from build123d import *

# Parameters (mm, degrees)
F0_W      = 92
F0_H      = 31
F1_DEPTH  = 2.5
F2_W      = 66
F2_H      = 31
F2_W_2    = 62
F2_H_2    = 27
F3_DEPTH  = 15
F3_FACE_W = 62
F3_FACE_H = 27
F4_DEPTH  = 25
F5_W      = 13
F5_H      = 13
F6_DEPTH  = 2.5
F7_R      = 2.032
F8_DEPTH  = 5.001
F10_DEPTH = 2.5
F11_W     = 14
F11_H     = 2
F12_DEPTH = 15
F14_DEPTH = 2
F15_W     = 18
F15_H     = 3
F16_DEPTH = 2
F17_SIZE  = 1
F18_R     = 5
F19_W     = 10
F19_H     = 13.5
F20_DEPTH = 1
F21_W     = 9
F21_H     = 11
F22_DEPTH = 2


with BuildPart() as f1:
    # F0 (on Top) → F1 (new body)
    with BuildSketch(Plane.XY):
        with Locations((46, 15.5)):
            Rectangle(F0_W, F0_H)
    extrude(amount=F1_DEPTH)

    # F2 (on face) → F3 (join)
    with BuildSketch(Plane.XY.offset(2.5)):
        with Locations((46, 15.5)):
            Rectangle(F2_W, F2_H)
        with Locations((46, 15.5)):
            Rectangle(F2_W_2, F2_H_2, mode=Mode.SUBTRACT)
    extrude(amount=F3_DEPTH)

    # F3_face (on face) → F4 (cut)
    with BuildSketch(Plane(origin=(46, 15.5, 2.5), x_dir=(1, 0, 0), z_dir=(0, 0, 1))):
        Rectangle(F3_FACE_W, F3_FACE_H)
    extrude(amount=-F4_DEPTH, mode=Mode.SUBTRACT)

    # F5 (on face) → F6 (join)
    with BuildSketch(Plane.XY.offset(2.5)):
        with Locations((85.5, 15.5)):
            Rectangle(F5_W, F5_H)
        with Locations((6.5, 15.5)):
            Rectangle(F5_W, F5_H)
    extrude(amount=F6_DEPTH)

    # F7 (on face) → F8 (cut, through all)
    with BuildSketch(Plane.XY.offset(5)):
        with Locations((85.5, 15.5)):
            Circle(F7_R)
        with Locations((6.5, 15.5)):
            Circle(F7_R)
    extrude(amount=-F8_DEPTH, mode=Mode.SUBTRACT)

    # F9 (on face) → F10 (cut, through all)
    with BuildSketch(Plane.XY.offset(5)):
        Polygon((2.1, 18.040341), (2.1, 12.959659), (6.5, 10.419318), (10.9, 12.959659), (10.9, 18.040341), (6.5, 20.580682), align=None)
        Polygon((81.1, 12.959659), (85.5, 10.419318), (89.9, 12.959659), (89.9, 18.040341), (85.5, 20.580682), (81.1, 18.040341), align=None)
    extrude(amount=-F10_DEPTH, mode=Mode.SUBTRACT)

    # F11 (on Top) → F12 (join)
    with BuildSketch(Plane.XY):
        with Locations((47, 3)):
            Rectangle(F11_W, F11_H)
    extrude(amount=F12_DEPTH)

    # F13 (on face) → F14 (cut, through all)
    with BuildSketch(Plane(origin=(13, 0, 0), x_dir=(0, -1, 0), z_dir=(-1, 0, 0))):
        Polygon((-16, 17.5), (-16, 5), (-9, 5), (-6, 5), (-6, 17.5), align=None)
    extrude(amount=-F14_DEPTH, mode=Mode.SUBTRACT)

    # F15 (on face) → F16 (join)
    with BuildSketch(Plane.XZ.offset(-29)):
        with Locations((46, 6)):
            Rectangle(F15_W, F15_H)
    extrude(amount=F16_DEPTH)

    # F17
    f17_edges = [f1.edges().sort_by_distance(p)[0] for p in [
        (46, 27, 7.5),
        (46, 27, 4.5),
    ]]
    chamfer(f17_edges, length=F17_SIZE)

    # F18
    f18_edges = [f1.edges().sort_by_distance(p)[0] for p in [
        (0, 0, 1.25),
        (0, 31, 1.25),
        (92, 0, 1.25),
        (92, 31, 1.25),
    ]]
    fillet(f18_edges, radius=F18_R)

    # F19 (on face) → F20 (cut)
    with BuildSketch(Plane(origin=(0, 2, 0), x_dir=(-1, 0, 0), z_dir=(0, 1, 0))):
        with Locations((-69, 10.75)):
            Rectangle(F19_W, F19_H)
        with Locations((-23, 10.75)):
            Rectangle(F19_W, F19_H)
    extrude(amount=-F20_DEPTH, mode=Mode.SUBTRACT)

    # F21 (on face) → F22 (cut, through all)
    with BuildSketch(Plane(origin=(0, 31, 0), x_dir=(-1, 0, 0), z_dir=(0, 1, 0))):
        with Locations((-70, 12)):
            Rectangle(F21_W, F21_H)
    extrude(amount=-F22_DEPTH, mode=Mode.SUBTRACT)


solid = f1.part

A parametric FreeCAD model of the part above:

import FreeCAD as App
import Part
import Sketcher

V = App.Vector
Q = App.Units.Quantity


def edges_at(feature, points):
    """Names of the edges that pass closest to the given points."""
    edges = feature.Shape.Edges
    near = lambda p: min(range(len(edges)), key=lambda i: edges[i].distToShape(Part.Vertex(*p))[0])
    return sorted({f"Edge{near(p) + 1}" for p in points})


def add_polygon(sketch, points):
    """Adds a closed chain of lines whose ends are joined by coincident constraints."""
    first, n = sketch.GeometryCount, len(points)
    for a, b in zip(points, points[1:] + points[:1]):
        sketch.addGeometry(Part.LineSegment(App.Vector(*a, 0), App.Vector(*b, 0)), False)
    for i in range(n):
        sketch.addConstraint(Sketcher.Constraint("Coincident", first + i, 2, first + (i + 1) % n, 1))

doc = App.newDocument("Part")
body = doc.addObject("PartDesign::Body", "Body")

sketch1 = body.newObject("Sketcher::SketchObject", "Sketch")
sketch1.AttachmentSupport = (doc.getObject("XY_Plane"), [""])
sketch1.MapMode = "FlatFace"
add_polygon(sketch1, [(0, 31), (0, 0), (92, 0), (92, 31)])
sketch1.addConstraint([
    Sketcher.Constraint("Vertical", 0),
    Sketcher.Constraint("Horizontal", 1),
    Sketcher.Constraint("Vertical", 2),
    Sketcher.Constraint("Horizontal", 3),
    Sketcher.Constraint("Coincident", 0, 2, -1, 1),
    Sketcher.Constraint("DistanceX", 1, 1, 1, 2, 92.0),
    Sketcher.Constraint("DistanceY", 0, 2, 0, 1, 31.0),
])
pad1 = body.newObject("PartDesign::Pad", "Pad")
pad1.Profile = sketch1
pad1.Length = 2.5

sketch2 = body.newObject("Sketcher::SketchObject", "Sketch001")
sketch2.AttachmentSupport = (doc.getObject("XY_Plane"), [""])
sketch2.MapMode = "FlatFace"
sketch2.AttachmentOffset = App.Placement(V(0, 0, 2.5), App.Rotation())
add_polygon(sketch2, [(13, 31), (13, 0), (79, 0), (79, 31)])
add_polygon(sketch2, [(77, 2), (15, 2), (15, 29), (77, 29)])
sketch2.addConstraint([
    Sketcher.Constraint("Vertical", 0),
    Sketcher.Constraint("Horizontal", 1),
    Sketcher.Constraint("Vertical", 2),
    Sketcher.Constraint("Horizontal", 3),
    Sketcher.Constraint("Horizontal", 4),
    Sketcher.Constraint("Vertical", 5),
    Sketcher.Constraint("Horizontal", 6),
    Sketcher.Constraint("Vertical", 7),
    Sketcher.Constraint("PointOnObject", 0, 2, -1),
    Sketcher.Constraint("DistanceX", 1, 1, 1, 2, 66.0),
    Sketcher.Constraint("DistanceX", 4, 2, 4, 1, 62.0),
    Sketcher.Constraint("DistanceY", 0, 2, 0, 1, 31.0),
    Sketcher.Constraint("DistanceY", 5, 1, 5, 2, 27.0),
    Sketcher.Constraint("DistanceX", -1, 1, 0, 2, 13.0),
    Sketcher.Constraint("DistanceX", -1, 1, 4, 2, 15.0),
    Sketcher.Constraint("DistanceY", -1, 1, 4, 2, 2.0),
])
pad2 = body.newObject("PartDesign::Pad", "Pad001")
pad2.Profile = sketch2
pad2.Length = 15

sketch3 = body.newObject("Sketcher::SketchObject", "Sketch002")
sketch3.AttachmentSupport = (doc.getObject("XY_Plane"), [""])
sketch3.MapMode = "FlatFace"
sketch3.AttachmentOffset = App.Placement(V(0, 0, 2.5), App.Rotation())
add_polygon(sketch3, [(15, 29), (15, 2), (77, 2), (77, 29)])
sketch3.addConstraint([
    Sketcher.Constraint("Vertical", 0),
    Sketcher.Constraint("Horizontal", 1),
    Sketcher.Constraint("Vertical", 2),
    Sketcher.Constraint("Horizontal", 3),
    Sketcher.Constraint("DistanceX", 1, 1, 1, 2, 62.0),
    Sketcher.Constraint("DistanceY", 0, 2, 0, 1, 27.0),
    Sketcher.Constraint("DistanceX", -1, 1, 0, 2, 15.0),
    Sketcher.Constraint("DistanceY", -1, 1, 0, 2, 2.0),
])
pocket1 = body.newObject("PartDesign::Pocket", "Pocket")
pocket1.Profile = sketch3
pocket1.Length = 25

sketch4 = body.newObject("Sketcher::SketchObject", "Sketch003")
sketch4.AttachmentSupport = (doc.getObject("XY_Plane"), [""])
sketch4.MapMode = "FlatFace"
sketch4.AttachmentOffset = App.Placement(V(0, 0, 2.5), App.Rotation())
add_polygon(sketch4, [(79, 22), (79, 9), (92, 9), (92, 22)])
add_polygon(sketch4, [(0, 22), (0, 9), (13, 9), (13, 22)])
sketch4.addConstraint([
    Sketcher.Constraint("Vertical", 0),
    Sketcher.Constraint("Horizontal", 1),
    Sketcher.Constraint("Vertical", 2),
    Sketcher.Constraint("Horizontal", 3),
    Sketcher.Constraint("Vertical", 4),
    Sketcher.Constraint("Horizontal", 5),
    Sketcher.Constraint("Vertical", 6),
    Sketcher.Constraint("Horizontal", 7),
    Sketcher.Constraint("PointOnObject", 4, 2, -2),
    Sketcher.Constraint("Horizontal", 1, 2, 4, 2),
    Sketcher.Constraint("Horizontal", 3, 2, 6, 2),
    Sketcher.Constraint("Equal", 3, 5),
    Sketcher.Constraint("Equal", 7, 0),
    Sketcher.Constraint("DistanceX", 1, 1, 1, 2, 13.0),
    Sketcher.Constraint("DistanceX", -1, 1, 0, 2, 79.0),
    Sketcher.Constraint("DistanceY", -1, 1, 0, 2, 9.0),
])
pad3 = body.newObject("PartDesign::Pad", "Pad002")
pad3.Profile = sketch4
pad3.Length = 2.5

sketch5 = body.newObject("Sketcher::SketchObject", "Sketch004")
sketch5.AttachmentSupport = (doc.getObject("XY_Plane"), [""])
sketch5.MapMode = "FlatFace"
sketch5.AttachmentOffset = App.Placement(V(0, 0, 5), App.Rotation())
sketch5.addGeometry([
    Part.Circle(V(85.5, 15.5, 0), V(0, 0, 1), 2.032),
    Part.Circle(V(6.5, 15.5, 0), V(0, 0, 1), 2.032),
], False)
sketch5.addConstraint([
    Sketcher.Constraint("Equal", 0, 1),
    Sketcher.Constraint("Horizontal", 0, 3, 1, 3),
    Sketcher.Constraint("Diameter", 0, 4.064),
    Sketcher.Constraint("DistanceX", 1, 3, 0, 3, 79.0),
    Sketcher.Constraint("DistanceX", -1, 1, 0, 3, 85.5),
    Sketcher.Constraint("DistanceY", -1, 1, 0, 3, 15.5),
])
pocket2 = body.newObject("PartDesign::Pocket", "Pocket001")
pocket2.Profile = sketch5
pocket2.Type = "ThroughAll"

sketch6 = body.newObject("Sketcher::SketchObject", "Sketch005")
sketch6.AttachmentSupport = (doc.getObject("XY_Plane"), [""])
sketch6.MapMode = "FlatFace"
sketch6.AttachmentOffset = App.Placement(V(0, 0, 5), App.Rotation())
add_polygon(sketch6, [(2.1, 18.040341), (2.1, 12.959659), (6.5, 10.419318), (10.9, 12.959659), (10.9, 18.040341), (6.5, 20.580682)])
add_polygon(sketch6, [(81.1, 12.959659), (85.5, 10.419318), (89.9, 12.959659), (89.9, 18.040341), (85.5, 20.580682), (81.1, 18.040341)])
sketch6.addConstraint([
    Sketcher.Constraint("Vertical", 0),
    Sketcher.Constraint("Vertical", 3),
    Sketcher.Constraint("Vertical", 8),
    Sketcher.Constraint("Vertical", 11),
    Sketcher.Constraint("Parallel", 1, 4),
    Sketcher.Constraint("Parallel", 2, 5),
    Sketcher.Constraint("Parallel", 4, 6),
    Sketcher.Constraint("Parallel", 5, 7),
    Sketcher.Constraint("Parallel", 6, 9),
    Sketcher.Constraint("Parallel", 7, 10),
    Sketcher.Constraint("Horizontal", 0, 2, 2, 2),
    Sketcher.Constraint("Horizontal", 3, 2, 5, 2),
    Sketcher.Constraint("Horizontal", 1, 2, 6, 2),
    Sketcher.Constraint("Horizontal", 2, 2, 7, 2),
    Sketcher.Constraint("Horizontal", 5, 2, 8, 2),
    Sketcher.Constraint("Horizontal", 4, 2, 9, 2),
    Sketcher.Constraint("Horizontal", 8, 2, 10, 2),
    Sketcher.Constraint("Vertical", 1, 2, 4, 2),
    Sketcher.Constraint("Angle", 1, Q("-29.999998 deg")),
    Sketcher.Constraint("DistanceX", 1, 2, 6, 2, 79.0),
    Sketcher.Constraint("DistanceX", -1, 1, 0, 2, 2.1),
    Sketcher.Constraint("DistanceX", -1, 1, 1, 2, 6.5),
    Sketcher.Constraint("DistanceY", 0, 2, 0, 1, 5.080682),
    Sketcher.Constraint("DistanceY", -1, 1, 0, 2, 12.959659),
])
pocket3 = body.newObject("PartDesign::Pocket", "Pocket002")
pocket3.Profile = sketch6
pocket3.Length = 2.5

sketch7 = body.newObject("Sketcher::SketchObject", "Sketch006")
sketch7.AttachmentSupport = (doc.getObject("XY_Plane"), [""])
sketch7.MapMode = "FlatFace"
add_polygon(sketch7, [(40, 4), (40, 2), (54, 2), (54, 4)])
sketch7.addConstraint([
    Sketcher.Constraint("Vertical", 0),
    Sketcher.Constraint("Horizontal", 1),
    Sketcher.Constraint("Vertical", 2),
    Sketcher.Constraint("Horizontal", 3),
    Sketcher.Constraint("DistanceX", 1, 1, 1, 2, 14.0),
    Sketcher.Constraint("DistanceY", 0, 2, 0, 1, 2.0),
    Sketcher.Constraint("DistanceX", -1, 1, 0, 2, 40.0),
    Sketcher.Constraint("DistanceY", -1, 1, 0, 2, 2.0),
])
pad4 = body.newObject("PartDesign::Pad", "Pad003")
pad4.Profile = sketch7
pad4.Length = 15

sketch8 = body.newObject("Sketcher::SketchObject", "Sketch007")
sketch8.AttachmentSupport = (doc.getObject("YZ_Plane"), [""])
sketch8.MapMode = "FlatFace"
sketch8.AttachmentOffset = App.Placement(V(0, 0, 13), App.Rotation())
add_polygon(sketch8, [(16, 17.5), (16, 5), (6, 5), (6, 17.5)])
sketch8.addConstraint([
    Sketcher.Constraint("Vertical", 0),
    Sketcher.Constraint("Horizontal", 1),
    Sketcher.Constraint("Vertical", 2),
    Sketcher.Constraint("Horizontal", 3),
    Sketcher.Constraint("DistanceX", 1, 2, 1, 1, 10.0),
    Sketcher.Constraint("DistanceY", 0, 2, 0, 1, 12.5),
    Sketcher.Constraint("DistanceX", -1, 1, 0, 2, 16.0),
    Sketcher.Constraint("DistanceY", -1, 1, 0, 2, 5.0),
])
pocket4 = body.newObject("PartDesign::Pocket", "Pocket003")
pocket4.Profile = sketch8
pocket4.Length = 2
pocket4.Reversed = True

sketch9 = body.newObject("Sketcher::SketchObject", "Sketch008")
sketch9.AttachmentSupport = (doc.getObject("XZ_Plane"), [""])
sketch9.MapMode = "FlatFace"
sketch9.AttachmentOffset = App.Placement(V(0, 0, -29), App.Rotation())
add_polygon(sketch9, [(37, 7.5), (37, 4.5), (55, 4.5), (55, 7.5)])
sketch9.addConstraint([
    Sketcher.Constraint("Vertical", 0),
    Sketcher.Constraint("Horizontal", 1),
    Sketcher.Constraint("Vertical", 2),
    Sketcher.Constraint("Horizontal", 3),
    Sketcher.Constraint("DistanceX", 1, 1, 1, 2, 18.0),
    Sketcher.Constraint("DistanceY", 0, 2, 0, 1, 3.0),
    Sketcher.Constraint("DistanceX", -1, 1, 0, 2, 37.0),
    Sketcher.Constraint("DistanceY", -1, 1, 0, 2, 4.5),
])
pad5 = body.newObject("PartDesign::Pad", "Pad004")
pad5.Profile = sketch9
pad5.Length = 2
doc.recompute()

chamfer = body.newObject("PartDesign::Chamfer", "Chamfer")
chamfer.Base = (pad5, edges_at(pad5, [(46, 27, 7.5), (46, 27, 4.5)]))
chamfer.Size = 1
doc.recompute()

fillet = body.newObject("PartDesign::Fillet", "Fillet")
fillet.Base = (chamfer, edges_at(chamfer, [
    (0, 0, 1.25),
    (0, 31, 1.25),
    (92, 0, 1.25),
    (92, 31, 1.25),
]))
fillet.Radius = 5

sketch10 = body.newObject("Sketcher::SketchObject", "Sketch009")
sketch10.AttachmentSupport = (doc.getObject("XZ_Plane"), [""])
sketch10.MapMode = "FlatFace"
sketch10.AttachmentOffset = App.Placement(V(0, 0, -2), App.Rotation())
add_polygon(sketch10, [(74, 17.5), (74, 4), (64, 4), (64, 17.5)])
add_polygon(sketch10, [(28, 17.5), (28, 4), (18, 4), (18, 17.5)])
sketch10.addConstraint([
    Sketcher.Constraint("Vertical", 0),
    Sketcher.Constraint("Horizontal", 1),
    Sketcher.Constraint("Vertical", 2),
    Sketcher.Constraint("Horizontal", 3),
    Sketcher.Constraint("Vertical", 4),
    Sketcher.Constraint("Horizontal", 5),
    Sketcher.Constraint("Vertical", 6),
    Sketcher.Constraint("Horizontal", 7),
    Sketcher.Constraint("Horizontal", 1, 2, 4, 2),
    Sketcher.Constraint("Horizontal", 3, 2, 6, 2),
    Sketcher.Constraint("Equal", 3, 5),
    Sketcher.Constraint("DistanceX", 1, 2, 1, 1, 10.0),
    Sketcher.Constraint("DistanceY", 0, 2, 0, 1, 13.5),
    Sketcher.Constraint("DistanceX", -1, 1, 0, 2, 74.0),
    Sketcher.Constraint("DistanceY", -1, 1, 0, 2, 4.0),
    Sketcher.Constraint("DistanceX", -1, 1, 4, 2, 28.0),
])
pocket5 = body.newObject("PartDesign::Pocket", "Pocket004")
pocket5.Profile = sketch10
pocket5.Length = 1
pocket5.Reversed = True

sketch11 = body.newObject("Sketcher::SketchObject", "Sketch010")
sketch11.AttachmentSupport = (doc.getObject("XZ_Plane"), [""])
sketch11.MapMode = "FlatFace"
sketch11.AttachmentOffset = App.Placement(V(0, 0, -31), App.Rotation())
add_polygon(sketch11, [(74.5, 17.5), (74.5, 6.5), (65.5, 6.5), (65.5, 17.5)])
sketch11.addConstraint([
    Sketcher.Constraint("Vertical", 0),
    Sketcher.Constraint("Horizontal", 1),
    Sketcher.Constraint("Vertical", 2),
    Sketcher.Constraint("Horizontal", 3),
    Sketcher.Constraint("DistanceX", 1, 2, 1, 1, 9.0),
    Sketcher.Constraint("DistanceY", 0, 2, 0, 1, 11.0),
    Sketcher.Constraint("DistanceX", -1, 1, 0, 2, 74.5),
    Sketcher.Constraint("DistanceY", -1, 1, 0, 2, 6.5),
])
pocket6 = body.newObject("PartDesign::Pocket", "Pocket005")
pocket6.Profile = sketch11
pocket6.Length = 2
pocket6.Reversed = True

doc.recompute()
